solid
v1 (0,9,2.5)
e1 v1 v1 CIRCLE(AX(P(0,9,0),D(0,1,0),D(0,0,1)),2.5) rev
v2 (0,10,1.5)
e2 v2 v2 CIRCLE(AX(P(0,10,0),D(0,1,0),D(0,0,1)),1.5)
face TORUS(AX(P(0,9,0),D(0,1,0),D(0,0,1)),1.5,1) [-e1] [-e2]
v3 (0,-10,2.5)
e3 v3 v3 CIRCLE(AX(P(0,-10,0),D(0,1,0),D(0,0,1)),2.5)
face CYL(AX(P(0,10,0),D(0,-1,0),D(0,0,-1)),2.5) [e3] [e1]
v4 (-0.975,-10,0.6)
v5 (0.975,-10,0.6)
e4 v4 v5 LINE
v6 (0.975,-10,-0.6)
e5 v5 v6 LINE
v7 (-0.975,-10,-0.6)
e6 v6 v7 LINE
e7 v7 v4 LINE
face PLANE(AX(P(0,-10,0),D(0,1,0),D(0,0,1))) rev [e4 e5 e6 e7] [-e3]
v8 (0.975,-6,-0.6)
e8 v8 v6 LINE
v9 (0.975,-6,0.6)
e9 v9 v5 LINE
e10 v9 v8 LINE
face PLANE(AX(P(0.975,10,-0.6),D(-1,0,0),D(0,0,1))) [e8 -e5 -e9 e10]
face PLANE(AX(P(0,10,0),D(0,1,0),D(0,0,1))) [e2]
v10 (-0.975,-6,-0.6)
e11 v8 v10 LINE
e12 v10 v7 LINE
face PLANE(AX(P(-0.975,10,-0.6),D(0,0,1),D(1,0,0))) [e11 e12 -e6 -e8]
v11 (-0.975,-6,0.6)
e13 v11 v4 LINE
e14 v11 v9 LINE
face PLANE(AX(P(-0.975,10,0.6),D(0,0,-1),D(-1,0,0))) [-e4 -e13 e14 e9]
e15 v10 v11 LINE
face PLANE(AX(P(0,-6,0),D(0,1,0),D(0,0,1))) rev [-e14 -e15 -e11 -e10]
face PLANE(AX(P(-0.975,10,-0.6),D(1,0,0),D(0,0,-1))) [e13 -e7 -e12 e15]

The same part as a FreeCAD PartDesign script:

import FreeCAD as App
import Part
import Sketcher
from FreeCAD import Vector
Q = App.Units.Quantity


def edges_at(feature, points):
    """Names of the edges that pass closest to the given points."""
    edges = feature.Shape.Edges
    near = lambda p: min(range(len(edges)), key=lambda i: edges[i].distToShape(Part.Vertex(*p))[0])
    return sorted({f"Edge{near(p) + 1}" for p in points})


def add_polygon(sketch, points):
    """Adds a closed chain of lines whose ends are joined by coincident constraints."""
    first, n = sketch.GeometryCount, len(points)
    for a, b in zip(points, points[1:] + points[:1]):
        sketch.addGeometry(Part.LineSegment(App.Vector(*a, 0), App.Vector(*b, 0)), False)
    for i in range(n):
        sketch.addConstraint(Sketcher.Constraint("Coincident", first + i, 2, first + (i + 1) % n, 1))

doc = App.newDocument("Part")
body = doc.addObject("PartDesign::Body", "Body")

# Sketch on XZ plane
sketch1 = body.newObject("Sketcher::SketchObject", "Sketch")
sketch1.AttachmentSupport = (doc.getObject("XZ_Plane"), [""])
sketch1.MapMode = "FlatFace"
sketch1.addGeometry(Part.Circle(Vector(0, 0, 0), Vector(0, 0, 1), 2.5), False)  # 0
add_polygon(sketch1, [(0.975, 0.6), (-0.975, 0.6), (-0.975, -0.6), (0.975, -0.6)])  # lines 1-4
sketch1.addConstraint(Sketcher.Constraint("Horizontal", 1))
sketch1.addConstraint(Sketcher.Constraint("Vertical", 2))
sketch1.addConstraint(Sketcher.Constraint("Horizontal", 3))
sketch1.addConstraint(Sketcher.Constraint("Vertical", 4))
sketch1.addConstraint(Sketcher.Constraint("Coincident", 0, 3, -1, 1))
sketch1.addConstraint(Sketcher.Constraint("Symmetric", 1, 2, 3, 2, -1, 1))
sketch1.addConstraint(Sketcher.Constraint("Diameter", 0, Q("5 mm")))
sketch1.addConstraint(Sketcher.Constraint("DistanceY", 2, 2, 2, 1, Q("1.2 mm")))
sketch1.addConstraint(Sketcher.Constraint("DistanceX", 1, 2, 1, 1, Q("1.95 mm")))
pad1 = body.newObject("PartDesign::Pad", "Pad")
pad1.Profile = sketch1
pad1.Length = 20
pad1.Midplane = True
doc.recompute()

fillet = body.newObject("PartDesign::Fillet", "Fillet")
fillet.Base = (pad1, edges_at(pad1, [(-2.5, 10, 0)]))
fillet.Radius = 1

# Sketch on XZ plane
sketch2 = body.newObject("Sketcher::SketchObject", "Sketch001")
sketch2.AttachmentSupport = (doc.getObject("XZ_Plane"), [""])
sketch2.MapMode = "FlatFace"
sketch2.AttachmentOffset = App.Placement(Vector(0, 0, -10), App.Rotation())
add_polygon(sketch2, [(-0.975, -0.6), (-0.975, 0.6), (0.975, 0.6), (0.975, -0.6)])  # lines 0-3
sketch2.addConstraint(Sketcher.Constraint("Vertical", 0))
sketch2.addConstraint(Sketcher.Constraint("Horizontal", 1))
sketch2.addConstraint(Sketcher.Constraint("Vertical", 2))
sketch2.addConstraint(Sketcher.Constraint("Horizontal", 3))
sketch2.addConstraint(Sketcher.Constraint("Symmetric", 0, 2, 2, 2, -1, 1))
sketch2.addConstraint(Sketcher.Constraint("DistanceY", 0, 1, 0, 2, Q("1.2 mm")))
sketch2.addConstraint(Sketcher.Constraint("DistanceX", 1, 1, 1, 2, Q("1.95 mm")))
pad2 = body.newObject("PartDesign::Pad", "Pad001")
pad2.Profile = sketch2
pad2.Length = 16

doc.recompute()
